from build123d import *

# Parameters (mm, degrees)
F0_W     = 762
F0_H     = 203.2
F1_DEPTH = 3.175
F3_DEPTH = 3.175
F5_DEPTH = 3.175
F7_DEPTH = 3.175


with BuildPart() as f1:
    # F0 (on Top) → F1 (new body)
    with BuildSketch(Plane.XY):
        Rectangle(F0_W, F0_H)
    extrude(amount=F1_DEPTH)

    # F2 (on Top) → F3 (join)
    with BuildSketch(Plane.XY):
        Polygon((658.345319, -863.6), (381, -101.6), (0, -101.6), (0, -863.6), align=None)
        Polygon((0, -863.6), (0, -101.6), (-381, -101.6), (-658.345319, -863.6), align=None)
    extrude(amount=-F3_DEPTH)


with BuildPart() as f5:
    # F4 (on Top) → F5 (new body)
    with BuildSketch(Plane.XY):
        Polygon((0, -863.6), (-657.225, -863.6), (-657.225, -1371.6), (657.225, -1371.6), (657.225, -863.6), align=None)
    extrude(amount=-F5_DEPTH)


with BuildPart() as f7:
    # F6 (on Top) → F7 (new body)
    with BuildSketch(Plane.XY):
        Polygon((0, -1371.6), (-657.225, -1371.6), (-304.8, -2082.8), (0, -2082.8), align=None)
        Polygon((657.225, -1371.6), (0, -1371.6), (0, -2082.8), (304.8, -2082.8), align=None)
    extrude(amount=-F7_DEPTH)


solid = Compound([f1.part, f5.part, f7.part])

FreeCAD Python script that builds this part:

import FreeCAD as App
import Part
import Sketcher

V = App.Vector
Q = App.Units.Quantity

doc = App.newDocument("Part")
body = doc.addObject("PartDesign::Body", "Body")
body.AllowCompound = True

sketch1 = doc.addObject("Sketcher::SketchObject", "Sketch")
body.addObject(sketch1)
sketch1.AttachmentSupport = (doc.XY_Plane, [""])
sketch1.MapMode = "FlatFace"
sketch1.addGeometry(Part.LineSegment(V(-381, 102, 0), V(-381, -102, 0)), False)
sketch1.addGeometry(Part.LineSegment(V(-381, -102, 0), V(381, -102, 0)), False)
sketch1.addGeometry(Part.LineSegment(V(381, -102, 0), V(381, 102, 0)), False)
sketch1.addGeometry(Part.LineSegment(V(381, 102, 0), V(-381, 102, 0)), False)
sketch1.addConstraint(Sketcher.Constraint("Coincident", 0, 2, 1, 1))
sketch1.addConstraint(Sketcher.Constraint("Coincident", 1, 2, 2, 1))
sketch1.addConstraint(Sketcher.Constraint("Coincident", 2, 2, 3, 1))
sketch1.addConstraint(Sketcher.Constraint("Coincident", 3, 2, 0, 1))
sketch1.addConstraint(Sketcher.Constraint("Vertical", 0))
sketch1.addConstraint(Sketcher.Constraint("Horizontal", 1))
sketch1.addConstraint(Sketcher.Constraint("Vertical", 2))
sketch1.addConstraint(Sketcher.Constraint("Horizontal", 3))
sketch1.addConstraint(Sketcher.Constraint("Symmetric", 0, 2, 2, 2, -1, 1))
sketch1.addConstraint(Sketcher.Constraint("DistanceX", 1, 1, 1, 2, Q("30 in")))
sketch1.addConstraint(Sketcher.Constraint("DistanceY", 0, 2, 0, 1, Q("8 in")))
pad1 = doc.addObject("PartDesign::Pad", "Pad")
body.addObject(pad1)
pad1.Profile = sketch1
pad1.Length = Q("0.125 in")

sketch2 = doc.addObject("Sketcher::SketchObject", "Sketch001")
body.addObject(sketch2)
sketch2.AttachmentSupport = (doc.XY_Plane, [""])
sketch2.MapMode = "FlatFace"
sketch2.addGeometry(Part.LineSegment(V(658, -864, 0), V(381, -102, 0)), False)
sketch2.addGeometry(Part.LineSegment(V(381, -102, 0), V(-381, -102, 0)), False)
sketch2.addGeometry(Part.LineSegment(V(-381, -102, 0), V(-658, -864, 0)), False)
sketch2.addGeometry(Part.LineSegment(V(-658, -864, 0), V(658, -864, 0)), False)
sketch2.addConstraint(Sketcher.Constraint("Coincident", 0, 2, 1, 1))
sketch2.addConstraint(Sketcher.Constraint("Coincident", 1, 2, 2, 1))
sketch2.addConstraint(Sketcher.Constraint("Coincident", 2, 2, 3, 1))
sketch2.addConstraint(Sketcher.Constraint("Coincident", 3, 2, 0, 1))
sketch2.addConstraint(Sketcher.Constraint("Horizontal", 1))
sketch2.addConstraint(Sketcher.Constraint("Horizontal", 3))
sketch2.addConstraint(Sketcher.Constraint("Equal", 0, 2))
sketch2.addConstraint(Sketcher.Constraint("DistanceX", 1, 2, 1, 1, Q("30 in")))
sketch2.addConstraint(Sketcher.Constraint("DistanceX", -1, 1, 0, 2, Q("15 in")))
sketch2.addConstraint(Sketcher.Constraint("DistanceY", 0, 2, -1, 1, Q("4 in")))
sketch2.addConstraint(Sketcher.Constraint("DistanceY", 2, 2, -1, 1, Q("34 in")))
sketch2.addConstraint(Sketcher.Constraint("Angle", 0, Q("110 deg")))
pad2 = doc.addObject("PartDesign::Pad", "Pad001")
body.addObject(pad2)
pad2.Profile = sketch2
pad2.Length = Q("0.125 in")
pad2.Reversed = True
body2 = doc.addObject("PartDesign::Body", "Body001")

sketch3 = doc.addObject("Sketcher::SketchObject", "Sketch002")
body2.addObject(sketch3)
sketch3.AttachmentSupport = (doc.getObject("XY_Plane001"), [""])
sketch3.MapMode = "FlatFace"
sketch3.addGeometry(Part.LineSegment(V(-657, -864, 0), V(-657, -1372, 0)), False)
sketch3.addGeometry(Part.LineSegment(V(-657, -1372, 0), V(657, -1372, 0)), False)
sketch3.addGeometry(Part.LineSegment(V(657, -1372, 0), V(657, -864, 0)), False)
sketch3.addGeometry(Part.LineSegment(V(657, -864, 0), V(-657, -864, 0)), False)
sketch3.addConstraint(Sketcher.Constraint("Coincident", 0, 2, 1, 1))
sketch3.addConstraint(Sketcher.Constraint("Coincident", 1, 2, 2, 1))
sketch3.addConstraint(Sketcher.Constraint("Coincident", 2, 2, 3, 1))
sketch3.addConstraint(Sketcher.Constraint("Coincident", 3, 2, 0, 1))
sketch3.addConstraint(Sketcher.Constraint("Vertical", 0))
sketch3.addConstraint(Sketcher.Constraint("Horizontal", 1))
sketch3.addConstraint(Sketcher.Constraint("Vertical", 2))
sketch3.addConstraint(Sketcher.Constraint("Horizontal", 3))
sketch3.addConstraint(Sketcher.Constraint("DistanceY", 0, 2, 0, 1, Q("20 in")))
sketch3.addConstraint(Sketcher.Constraint("DistanceY", 0, 2, -1, 1, Q("54 in")))
sketch3.addConstraint(Sketcher.Constraint("DistanceX", 1, 1, 1, 2, Q("51.75 in")))
sketch3.addConstraint(Sketcher.Constraint("DistanceX", 0, 2, -1, 1, Q("25.875 in")))
pad3 = doc.addObject("PartDesign::Pad", "Pad002")
body2.addObject(pad3)
pad3.Profile = sketch3
pad3.Length = Q("0.125 in")
pad3.Reversed = True
body3 = doc.addObject("PartDesign::Body", "Body002")

sketch4 = doc.addObject("Sketcher::SketchObject", "Sketch003")
body3.addObject(sketch4)
sketch4.AttachmentSupport = (doc.getObject("XY_Plane002"), [""])
sketch4.MapMode = "FlatFace"
sketch4.addGeometry(Part.LineSegment(V(-657, -1372, 0), V(-305, -2083, 0)), False)
sketch4.addGeometry(Part.LineSegment(V(-305, -2083, 0), V(305, -2083, 0)), False)
sketch4.addGeometry(Part.LineSegment(V(305, -2083, 0), V(657, -1372, 0)), False)
sketch4.addGeometry(Part.LineSegment(V(657, -1372, 0), V(-657, -1372, 0)), False)
sketch4.addConstraint(Sketcher.Constraint("Coincident", 0, 2, 1, 1))
sketch4.addConstraint(Sketcher.Constraint("Coincident", 1, 2, 2, 1))
sketch4.addConstraint(Sketcher.Constraint("Coincident", 2, 2, 3, 1))
sketch4.addConstraint(Sketcher.Constraint("Coincident", 3, 2, 0, 1))
sketch4.addConstraint(Sketcher.Constraint("Horizontal", 1))
sketch4.addConstraint(Sketcher.Constraint("Horizontal", 3))
sketch4.addConstraint(Sketcher.Constraint("Equal", 0, 2))
sketch4.addConstraint(Sketcher.Constraint("DistanceX", 1, 1, 1, 2, Q("24 in")))
sketch4.addConstraint(Sketcher.Constraint("DistanceX", 0, 2, -1, 1, Q("12 in")))
sketch4.addConstraint(Sketcher.Constraint("DistanceY", 0, 2, -1, 1, Q("82 in")))
sketch4.addConstraint(Sketcher.Constraint("DistanceY", 2, 2, -1, 1, Q("54 in")))
sketch4.addConstraint(Sketcher.Constraint("DistanceX", 3, 2, 3, 1, Q("51.75 in")))
pad4 = doc.addObject("PartDesign::Pad", "Pad003")
body3.addObject(pad4)
pad4.Profile = sketch4
pad4.Length = Q("0.125 in")
pad4.Reversed = True

doc.recompute()
